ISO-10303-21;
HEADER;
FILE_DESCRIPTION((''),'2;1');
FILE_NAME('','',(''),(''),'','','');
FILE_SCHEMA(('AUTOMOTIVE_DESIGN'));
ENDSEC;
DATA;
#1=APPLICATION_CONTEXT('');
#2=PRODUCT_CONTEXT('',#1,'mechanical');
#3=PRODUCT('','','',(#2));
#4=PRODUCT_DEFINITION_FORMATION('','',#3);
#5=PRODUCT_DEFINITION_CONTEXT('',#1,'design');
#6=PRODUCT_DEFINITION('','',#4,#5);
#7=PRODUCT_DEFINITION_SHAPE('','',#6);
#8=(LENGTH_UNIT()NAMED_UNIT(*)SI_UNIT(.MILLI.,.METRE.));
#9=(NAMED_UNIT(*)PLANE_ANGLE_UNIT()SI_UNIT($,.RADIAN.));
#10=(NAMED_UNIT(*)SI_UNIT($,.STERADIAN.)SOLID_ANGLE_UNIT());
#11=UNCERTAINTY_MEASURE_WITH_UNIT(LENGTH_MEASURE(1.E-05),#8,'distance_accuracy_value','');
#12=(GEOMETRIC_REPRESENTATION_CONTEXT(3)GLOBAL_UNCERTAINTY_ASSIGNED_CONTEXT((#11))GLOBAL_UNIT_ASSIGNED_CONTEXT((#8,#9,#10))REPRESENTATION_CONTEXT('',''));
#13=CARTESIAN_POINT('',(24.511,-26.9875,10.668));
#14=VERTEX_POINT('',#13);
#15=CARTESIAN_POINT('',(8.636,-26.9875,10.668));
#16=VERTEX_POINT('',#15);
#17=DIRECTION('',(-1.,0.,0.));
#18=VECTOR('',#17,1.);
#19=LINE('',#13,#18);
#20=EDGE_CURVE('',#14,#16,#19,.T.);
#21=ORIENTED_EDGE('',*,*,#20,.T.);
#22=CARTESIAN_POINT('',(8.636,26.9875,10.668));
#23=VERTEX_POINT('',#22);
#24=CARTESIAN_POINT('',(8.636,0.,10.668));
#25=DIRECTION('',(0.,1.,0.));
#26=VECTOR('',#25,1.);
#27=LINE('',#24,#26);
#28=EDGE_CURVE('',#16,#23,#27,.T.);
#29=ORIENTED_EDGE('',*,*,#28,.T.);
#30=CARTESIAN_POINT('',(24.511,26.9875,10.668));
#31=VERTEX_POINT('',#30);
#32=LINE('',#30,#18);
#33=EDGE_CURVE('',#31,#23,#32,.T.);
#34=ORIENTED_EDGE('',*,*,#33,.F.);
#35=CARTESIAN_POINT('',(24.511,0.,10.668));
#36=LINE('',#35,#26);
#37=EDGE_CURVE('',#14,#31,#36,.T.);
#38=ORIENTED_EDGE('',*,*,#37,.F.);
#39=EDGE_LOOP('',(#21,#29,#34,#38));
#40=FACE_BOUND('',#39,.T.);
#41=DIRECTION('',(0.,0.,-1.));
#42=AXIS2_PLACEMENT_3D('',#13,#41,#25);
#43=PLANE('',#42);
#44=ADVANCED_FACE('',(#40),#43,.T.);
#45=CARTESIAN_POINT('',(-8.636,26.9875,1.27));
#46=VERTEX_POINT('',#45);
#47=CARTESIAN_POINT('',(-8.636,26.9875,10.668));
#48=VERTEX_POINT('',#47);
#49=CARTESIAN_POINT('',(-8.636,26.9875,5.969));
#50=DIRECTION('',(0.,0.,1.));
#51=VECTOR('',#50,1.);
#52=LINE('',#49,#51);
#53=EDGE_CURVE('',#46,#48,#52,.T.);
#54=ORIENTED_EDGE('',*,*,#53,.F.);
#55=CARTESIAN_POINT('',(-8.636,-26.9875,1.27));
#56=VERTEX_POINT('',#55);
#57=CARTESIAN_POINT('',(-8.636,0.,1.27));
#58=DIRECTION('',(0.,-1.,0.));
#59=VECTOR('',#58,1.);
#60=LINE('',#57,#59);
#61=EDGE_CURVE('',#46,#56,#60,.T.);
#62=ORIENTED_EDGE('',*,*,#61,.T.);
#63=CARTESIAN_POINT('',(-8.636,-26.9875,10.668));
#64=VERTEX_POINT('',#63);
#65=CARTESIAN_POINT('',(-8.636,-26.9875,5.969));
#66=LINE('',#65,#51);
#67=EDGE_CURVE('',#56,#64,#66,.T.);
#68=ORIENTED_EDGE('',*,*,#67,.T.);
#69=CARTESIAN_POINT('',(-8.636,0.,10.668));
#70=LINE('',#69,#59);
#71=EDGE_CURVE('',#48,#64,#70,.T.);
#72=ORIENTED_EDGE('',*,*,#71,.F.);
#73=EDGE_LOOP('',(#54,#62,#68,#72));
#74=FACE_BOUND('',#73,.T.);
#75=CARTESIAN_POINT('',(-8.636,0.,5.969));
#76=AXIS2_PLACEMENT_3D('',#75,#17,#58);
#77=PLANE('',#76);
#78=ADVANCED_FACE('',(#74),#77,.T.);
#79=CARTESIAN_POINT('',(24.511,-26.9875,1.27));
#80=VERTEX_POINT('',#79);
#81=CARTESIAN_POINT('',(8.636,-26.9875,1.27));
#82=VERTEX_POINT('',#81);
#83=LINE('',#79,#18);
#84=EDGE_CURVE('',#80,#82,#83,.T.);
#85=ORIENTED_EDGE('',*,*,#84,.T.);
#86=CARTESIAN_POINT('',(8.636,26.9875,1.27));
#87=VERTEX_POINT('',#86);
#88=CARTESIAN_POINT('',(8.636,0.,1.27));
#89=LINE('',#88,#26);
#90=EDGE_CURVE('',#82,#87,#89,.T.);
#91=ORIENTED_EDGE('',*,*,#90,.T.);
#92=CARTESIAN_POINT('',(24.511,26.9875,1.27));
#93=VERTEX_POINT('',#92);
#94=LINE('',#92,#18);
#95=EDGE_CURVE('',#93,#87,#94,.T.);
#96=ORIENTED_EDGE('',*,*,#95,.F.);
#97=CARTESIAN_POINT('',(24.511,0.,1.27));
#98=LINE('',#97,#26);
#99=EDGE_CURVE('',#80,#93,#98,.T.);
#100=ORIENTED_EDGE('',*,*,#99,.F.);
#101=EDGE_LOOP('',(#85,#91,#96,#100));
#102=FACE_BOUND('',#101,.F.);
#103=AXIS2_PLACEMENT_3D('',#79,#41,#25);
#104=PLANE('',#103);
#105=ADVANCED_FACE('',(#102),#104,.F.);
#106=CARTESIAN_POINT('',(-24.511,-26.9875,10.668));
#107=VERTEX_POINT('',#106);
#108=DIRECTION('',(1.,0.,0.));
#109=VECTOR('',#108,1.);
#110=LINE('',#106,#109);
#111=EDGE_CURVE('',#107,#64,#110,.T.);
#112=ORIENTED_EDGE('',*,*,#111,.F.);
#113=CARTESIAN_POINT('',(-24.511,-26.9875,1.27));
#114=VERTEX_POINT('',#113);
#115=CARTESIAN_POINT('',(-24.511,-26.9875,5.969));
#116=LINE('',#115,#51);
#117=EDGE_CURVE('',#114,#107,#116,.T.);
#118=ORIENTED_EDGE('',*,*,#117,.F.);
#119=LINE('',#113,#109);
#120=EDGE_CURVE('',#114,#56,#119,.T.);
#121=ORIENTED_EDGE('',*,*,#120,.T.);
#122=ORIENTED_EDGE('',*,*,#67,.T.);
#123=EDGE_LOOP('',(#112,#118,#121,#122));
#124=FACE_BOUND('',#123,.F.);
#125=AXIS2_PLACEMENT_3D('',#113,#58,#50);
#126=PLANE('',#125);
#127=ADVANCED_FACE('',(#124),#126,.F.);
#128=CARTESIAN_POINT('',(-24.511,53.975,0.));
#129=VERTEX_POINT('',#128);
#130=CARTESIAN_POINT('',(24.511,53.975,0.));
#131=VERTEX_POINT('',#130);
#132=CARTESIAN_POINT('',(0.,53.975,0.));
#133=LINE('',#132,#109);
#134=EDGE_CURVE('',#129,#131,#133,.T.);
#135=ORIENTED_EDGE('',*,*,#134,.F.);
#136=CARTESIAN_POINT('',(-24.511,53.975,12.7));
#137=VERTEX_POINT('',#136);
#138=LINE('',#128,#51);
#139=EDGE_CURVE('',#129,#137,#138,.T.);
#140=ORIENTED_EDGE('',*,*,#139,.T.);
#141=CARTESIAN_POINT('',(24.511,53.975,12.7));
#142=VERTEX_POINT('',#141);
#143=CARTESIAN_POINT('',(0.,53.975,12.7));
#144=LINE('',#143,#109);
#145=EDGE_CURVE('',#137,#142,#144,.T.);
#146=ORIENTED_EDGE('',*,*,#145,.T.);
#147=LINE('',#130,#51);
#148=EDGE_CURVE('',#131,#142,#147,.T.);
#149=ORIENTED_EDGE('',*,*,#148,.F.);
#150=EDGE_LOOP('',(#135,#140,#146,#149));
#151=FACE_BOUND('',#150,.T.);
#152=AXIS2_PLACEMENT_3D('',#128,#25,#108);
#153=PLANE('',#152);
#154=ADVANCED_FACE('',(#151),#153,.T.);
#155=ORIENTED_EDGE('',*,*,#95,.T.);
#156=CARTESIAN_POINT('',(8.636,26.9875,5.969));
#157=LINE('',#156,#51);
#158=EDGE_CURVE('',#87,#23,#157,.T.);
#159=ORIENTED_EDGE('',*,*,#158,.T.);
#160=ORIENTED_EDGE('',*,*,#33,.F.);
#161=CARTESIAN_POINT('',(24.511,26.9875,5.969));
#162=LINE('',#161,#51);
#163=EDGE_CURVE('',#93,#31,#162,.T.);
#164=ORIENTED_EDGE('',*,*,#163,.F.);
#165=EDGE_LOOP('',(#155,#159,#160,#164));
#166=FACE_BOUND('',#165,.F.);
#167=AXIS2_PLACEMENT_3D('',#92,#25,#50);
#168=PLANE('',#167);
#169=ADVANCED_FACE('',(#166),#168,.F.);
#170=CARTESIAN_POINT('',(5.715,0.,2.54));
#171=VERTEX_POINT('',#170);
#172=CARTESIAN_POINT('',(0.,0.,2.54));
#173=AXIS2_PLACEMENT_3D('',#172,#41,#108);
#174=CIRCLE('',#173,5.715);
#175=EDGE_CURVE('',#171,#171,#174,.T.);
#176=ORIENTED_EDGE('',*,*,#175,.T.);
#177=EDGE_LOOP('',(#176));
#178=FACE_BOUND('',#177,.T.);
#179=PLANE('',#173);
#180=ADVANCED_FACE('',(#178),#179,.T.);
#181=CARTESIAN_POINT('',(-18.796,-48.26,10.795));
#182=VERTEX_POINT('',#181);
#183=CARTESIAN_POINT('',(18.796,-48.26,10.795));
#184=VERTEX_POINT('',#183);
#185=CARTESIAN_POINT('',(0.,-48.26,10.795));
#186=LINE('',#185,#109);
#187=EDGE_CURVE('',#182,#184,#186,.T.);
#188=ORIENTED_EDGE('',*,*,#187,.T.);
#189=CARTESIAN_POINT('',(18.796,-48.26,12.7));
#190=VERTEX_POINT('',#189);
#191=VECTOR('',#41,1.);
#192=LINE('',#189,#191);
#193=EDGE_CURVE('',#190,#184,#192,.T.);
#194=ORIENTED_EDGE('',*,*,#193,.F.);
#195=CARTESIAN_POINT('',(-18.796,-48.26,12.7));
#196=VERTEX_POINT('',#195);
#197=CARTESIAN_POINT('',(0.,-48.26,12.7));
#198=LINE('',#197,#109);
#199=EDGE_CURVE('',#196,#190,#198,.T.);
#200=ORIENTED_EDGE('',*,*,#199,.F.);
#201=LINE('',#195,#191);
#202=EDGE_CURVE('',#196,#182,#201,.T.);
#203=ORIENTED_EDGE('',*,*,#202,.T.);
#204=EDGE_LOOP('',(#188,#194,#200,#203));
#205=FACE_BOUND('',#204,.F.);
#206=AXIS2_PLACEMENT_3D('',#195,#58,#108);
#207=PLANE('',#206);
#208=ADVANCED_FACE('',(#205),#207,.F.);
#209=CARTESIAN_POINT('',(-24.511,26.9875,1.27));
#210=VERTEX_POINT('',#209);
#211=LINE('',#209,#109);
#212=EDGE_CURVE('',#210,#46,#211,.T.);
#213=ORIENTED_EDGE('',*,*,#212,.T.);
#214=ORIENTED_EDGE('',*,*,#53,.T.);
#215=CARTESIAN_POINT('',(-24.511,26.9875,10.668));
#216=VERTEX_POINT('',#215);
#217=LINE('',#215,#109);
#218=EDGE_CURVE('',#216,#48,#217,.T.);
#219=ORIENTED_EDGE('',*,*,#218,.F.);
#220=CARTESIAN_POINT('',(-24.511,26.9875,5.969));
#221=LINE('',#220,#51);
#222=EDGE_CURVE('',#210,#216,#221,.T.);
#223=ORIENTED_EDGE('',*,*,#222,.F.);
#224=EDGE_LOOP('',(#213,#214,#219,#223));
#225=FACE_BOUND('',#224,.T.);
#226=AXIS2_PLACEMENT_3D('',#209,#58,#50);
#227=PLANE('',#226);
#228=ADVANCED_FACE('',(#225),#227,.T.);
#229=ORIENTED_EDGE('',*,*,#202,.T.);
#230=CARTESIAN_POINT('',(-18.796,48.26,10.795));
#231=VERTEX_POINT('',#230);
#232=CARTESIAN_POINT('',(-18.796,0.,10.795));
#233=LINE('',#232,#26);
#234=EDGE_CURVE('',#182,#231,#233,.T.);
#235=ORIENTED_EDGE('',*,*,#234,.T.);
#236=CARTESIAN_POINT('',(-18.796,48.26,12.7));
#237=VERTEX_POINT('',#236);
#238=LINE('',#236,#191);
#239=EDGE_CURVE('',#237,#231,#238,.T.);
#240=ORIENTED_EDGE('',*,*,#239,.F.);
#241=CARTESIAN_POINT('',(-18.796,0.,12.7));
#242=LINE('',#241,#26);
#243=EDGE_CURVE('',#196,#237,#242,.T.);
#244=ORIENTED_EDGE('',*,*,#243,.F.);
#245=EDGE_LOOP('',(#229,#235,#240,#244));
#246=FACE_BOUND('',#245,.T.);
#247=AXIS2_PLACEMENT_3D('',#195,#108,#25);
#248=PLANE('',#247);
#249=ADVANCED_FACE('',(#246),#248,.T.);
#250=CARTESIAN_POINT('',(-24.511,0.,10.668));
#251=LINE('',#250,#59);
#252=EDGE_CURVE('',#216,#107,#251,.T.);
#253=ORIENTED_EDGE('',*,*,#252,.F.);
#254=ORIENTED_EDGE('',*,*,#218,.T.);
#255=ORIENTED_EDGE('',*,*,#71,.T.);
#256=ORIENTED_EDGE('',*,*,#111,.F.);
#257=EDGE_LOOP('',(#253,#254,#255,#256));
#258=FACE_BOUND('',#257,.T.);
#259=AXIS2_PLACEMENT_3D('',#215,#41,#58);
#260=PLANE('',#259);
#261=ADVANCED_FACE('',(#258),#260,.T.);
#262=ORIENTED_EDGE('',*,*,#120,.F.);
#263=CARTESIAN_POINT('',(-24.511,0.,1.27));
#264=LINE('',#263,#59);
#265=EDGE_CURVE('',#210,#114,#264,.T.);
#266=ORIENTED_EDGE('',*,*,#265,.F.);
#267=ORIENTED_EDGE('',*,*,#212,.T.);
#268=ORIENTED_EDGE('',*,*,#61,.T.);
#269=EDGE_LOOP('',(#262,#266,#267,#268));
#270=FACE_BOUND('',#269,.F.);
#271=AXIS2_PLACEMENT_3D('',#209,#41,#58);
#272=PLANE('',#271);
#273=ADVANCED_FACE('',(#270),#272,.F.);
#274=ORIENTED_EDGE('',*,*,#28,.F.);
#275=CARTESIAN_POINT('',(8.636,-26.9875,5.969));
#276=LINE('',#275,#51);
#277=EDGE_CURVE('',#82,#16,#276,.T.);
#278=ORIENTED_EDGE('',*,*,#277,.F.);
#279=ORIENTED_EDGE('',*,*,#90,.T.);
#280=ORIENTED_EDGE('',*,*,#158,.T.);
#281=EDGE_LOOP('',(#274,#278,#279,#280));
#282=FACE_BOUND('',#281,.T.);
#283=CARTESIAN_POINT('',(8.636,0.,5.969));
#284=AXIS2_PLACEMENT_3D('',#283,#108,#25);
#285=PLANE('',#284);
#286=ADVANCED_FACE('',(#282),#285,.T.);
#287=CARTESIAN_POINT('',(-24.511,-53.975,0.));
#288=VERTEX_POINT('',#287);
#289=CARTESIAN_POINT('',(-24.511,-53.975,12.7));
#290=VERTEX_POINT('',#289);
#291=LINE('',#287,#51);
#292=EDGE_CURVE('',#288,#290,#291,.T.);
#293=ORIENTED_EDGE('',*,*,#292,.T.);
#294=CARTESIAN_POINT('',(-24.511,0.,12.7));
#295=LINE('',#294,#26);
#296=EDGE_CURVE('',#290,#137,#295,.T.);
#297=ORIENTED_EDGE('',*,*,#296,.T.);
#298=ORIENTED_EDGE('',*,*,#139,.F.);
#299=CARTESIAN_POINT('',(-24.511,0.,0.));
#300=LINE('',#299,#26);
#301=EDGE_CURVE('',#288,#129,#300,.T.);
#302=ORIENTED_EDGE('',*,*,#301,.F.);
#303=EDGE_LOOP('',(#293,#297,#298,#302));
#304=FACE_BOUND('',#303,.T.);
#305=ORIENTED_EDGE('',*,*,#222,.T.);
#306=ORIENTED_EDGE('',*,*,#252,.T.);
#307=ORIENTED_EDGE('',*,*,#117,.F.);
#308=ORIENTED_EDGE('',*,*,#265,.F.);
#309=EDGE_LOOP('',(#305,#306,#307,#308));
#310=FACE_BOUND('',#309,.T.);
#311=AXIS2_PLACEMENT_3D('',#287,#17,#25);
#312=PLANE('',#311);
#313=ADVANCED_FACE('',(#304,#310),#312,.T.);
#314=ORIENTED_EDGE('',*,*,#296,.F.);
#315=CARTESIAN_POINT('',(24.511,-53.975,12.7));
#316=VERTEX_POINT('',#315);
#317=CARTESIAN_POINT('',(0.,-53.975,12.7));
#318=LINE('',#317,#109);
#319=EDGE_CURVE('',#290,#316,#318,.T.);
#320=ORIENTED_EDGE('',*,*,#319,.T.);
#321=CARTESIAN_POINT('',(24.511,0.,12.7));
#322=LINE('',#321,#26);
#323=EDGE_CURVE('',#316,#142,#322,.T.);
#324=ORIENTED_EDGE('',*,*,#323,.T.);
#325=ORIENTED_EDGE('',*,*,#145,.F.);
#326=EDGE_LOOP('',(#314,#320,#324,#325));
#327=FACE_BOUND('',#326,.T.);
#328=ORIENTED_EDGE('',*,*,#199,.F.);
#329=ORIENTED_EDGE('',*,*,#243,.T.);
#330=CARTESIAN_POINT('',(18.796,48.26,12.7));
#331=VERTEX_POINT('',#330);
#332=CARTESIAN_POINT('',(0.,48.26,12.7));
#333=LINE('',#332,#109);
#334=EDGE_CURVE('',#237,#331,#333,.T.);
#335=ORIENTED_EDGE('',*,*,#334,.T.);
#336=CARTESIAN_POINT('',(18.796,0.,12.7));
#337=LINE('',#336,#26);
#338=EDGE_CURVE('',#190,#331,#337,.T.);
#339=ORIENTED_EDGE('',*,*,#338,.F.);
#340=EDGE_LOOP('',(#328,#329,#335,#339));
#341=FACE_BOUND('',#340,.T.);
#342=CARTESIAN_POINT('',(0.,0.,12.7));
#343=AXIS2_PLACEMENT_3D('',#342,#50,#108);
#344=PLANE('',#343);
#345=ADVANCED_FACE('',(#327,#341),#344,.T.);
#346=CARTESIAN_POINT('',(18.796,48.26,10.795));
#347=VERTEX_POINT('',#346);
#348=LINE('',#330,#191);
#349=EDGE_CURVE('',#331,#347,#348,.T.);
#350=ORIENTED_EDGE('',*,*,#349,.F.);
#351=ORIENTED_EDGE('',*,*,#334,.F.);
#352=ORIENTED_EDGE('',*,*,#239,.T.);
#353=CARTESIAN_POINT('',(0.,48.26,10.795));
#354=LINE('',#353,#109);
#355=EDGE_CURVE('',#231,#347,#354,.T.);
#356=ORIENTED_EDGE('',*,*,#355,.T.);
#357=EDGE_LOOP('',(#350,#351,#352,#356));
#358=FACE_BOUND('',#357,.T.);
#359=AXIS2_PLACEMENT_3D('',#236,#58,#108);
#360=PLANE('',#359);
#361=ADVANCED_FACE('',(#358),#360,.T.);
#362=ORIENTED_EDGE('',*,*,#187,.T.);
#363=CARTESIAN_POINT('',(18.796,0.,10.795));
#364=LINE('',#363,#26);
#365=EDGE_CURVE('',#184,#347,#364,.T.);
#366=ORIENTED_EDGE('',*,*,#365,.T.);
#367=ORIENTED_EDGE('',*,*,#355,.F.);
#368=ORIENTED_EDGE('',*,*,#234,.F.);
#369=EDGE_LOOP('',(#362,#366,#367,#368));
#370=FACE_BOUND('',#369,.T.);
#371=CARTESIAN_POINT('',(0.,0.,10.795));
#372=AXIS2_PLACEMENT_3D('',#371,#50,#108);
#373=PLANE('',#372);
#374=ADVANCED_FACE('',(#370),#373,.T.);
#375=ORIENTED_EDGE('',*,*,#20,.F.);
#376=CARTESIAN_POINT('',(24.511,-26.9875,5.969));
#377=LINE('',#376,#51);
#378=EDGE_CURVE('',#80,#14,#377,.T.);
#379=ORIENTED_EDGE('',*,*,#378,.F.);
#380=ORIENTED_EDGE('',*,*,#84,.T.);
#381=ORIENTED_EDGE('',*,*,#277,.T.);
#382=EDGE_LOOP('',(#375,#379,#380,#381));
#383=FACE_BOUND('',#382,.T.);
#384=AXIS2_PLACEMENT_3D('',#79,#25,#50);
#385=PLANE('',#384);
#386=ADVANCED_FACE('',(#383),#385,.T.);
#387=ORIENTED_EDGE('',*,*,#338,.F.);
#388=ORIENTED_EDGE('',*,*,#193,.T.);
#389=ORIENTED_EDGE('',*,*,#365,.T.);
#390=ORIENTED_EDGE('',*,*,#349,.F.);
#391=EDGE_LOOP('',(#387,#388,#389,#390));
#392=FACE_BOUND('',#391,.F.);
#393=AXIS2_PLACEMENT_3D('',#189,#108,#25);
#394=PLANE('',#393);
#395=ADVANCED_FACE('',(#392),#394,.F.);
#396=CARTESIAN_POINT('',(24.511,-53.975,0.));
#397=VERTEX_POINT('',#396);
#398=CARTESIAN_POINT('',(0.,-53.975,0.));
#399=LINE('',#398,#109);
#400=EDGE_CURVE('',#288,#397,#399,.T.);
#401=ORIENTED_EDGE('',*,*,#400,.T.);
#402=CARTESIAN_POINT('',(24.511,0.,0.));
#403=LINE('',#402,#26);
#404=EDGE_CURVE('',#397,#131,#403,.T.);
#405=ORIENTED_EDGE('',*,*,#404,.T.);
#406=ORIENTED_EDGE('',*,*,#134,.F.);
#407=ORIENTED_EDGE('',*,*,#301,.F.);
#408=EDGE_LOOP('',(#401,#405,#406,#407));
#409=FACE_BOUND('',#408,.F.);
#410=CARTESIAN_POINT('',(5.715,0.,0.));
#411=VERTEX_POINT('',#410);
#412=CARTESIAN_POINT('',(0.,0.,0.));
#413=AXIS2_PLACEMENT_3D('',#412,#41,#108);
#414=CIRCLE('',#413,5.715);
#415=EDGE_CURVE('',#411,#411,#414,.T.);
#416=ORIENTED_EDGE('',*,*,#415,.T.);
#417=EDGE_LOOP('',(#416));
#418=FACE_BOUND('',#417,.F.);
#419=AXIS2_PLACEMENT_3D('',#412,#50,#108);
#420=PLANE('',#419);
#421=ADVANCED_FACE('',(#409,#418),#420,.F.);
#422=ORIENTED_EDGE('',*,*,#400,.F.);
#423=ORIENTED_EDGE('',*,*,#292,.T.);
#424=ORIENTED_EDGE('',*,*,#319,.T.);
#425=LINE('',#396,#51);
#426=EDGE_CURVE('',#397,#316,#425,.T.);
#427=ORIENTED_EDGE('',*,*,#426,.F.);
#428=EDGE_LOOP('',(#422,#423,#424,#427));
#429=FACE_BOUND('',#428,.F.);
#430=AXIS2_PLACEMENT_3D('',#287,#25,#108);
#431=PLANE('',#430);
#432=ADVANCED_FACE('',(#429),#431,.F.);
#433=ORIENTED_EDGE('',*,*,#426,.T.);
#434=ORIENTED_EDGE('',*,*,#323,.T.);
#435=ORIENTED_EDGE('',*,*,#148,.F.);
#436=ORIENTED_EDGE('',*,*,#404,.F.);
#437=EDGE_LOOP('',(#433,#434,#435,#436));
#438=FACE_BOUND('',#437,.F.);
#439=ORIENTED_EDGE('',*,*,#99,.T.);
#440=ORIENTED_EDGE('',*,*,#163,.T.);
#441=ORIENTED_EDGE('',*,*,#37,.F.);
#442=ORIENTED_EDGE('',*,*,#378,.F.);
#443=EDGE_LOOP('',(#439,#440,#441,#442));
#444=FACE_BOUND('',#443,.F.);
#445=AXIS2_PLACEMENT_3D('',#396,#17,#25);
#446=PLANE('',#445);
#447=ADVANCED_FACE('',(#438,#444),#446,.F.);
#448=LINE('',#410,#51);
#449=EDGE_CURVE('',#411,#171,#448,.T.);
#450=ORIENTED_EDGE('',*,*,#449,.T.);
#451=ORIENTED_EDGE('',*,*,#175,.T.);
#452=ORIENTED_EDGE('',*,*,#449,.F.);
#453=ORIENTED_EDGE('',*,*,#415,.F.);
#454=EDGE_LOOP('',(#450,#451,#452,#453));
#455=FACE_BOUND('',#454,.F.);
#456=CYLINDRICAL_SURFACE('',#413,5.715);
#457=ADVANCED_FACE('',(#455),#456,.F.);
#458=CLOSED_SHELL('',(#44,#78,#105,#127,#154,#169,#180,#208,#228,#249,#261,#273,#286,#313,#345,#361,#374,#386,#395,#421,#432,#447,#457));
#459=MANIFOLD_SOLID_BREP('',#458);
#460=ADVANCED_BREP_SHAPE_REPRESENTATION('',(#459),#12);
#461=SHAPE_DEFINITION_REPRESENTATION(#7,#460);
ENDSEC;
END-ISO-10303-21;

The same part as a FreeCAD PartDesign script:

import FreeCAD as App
import Part
import Sketcher
Q = App.Units.Quantity


def add_polygon(sketch, points):
    """Adds a closed chain of lines whose ends are joined by coincident constraints."""
    first, n = sketch.GeometryCount, len(points)
    for a, b in zip(points, points[1:] + points[:1]):
        sketch.addGeometry(Part.LineSegment(App.Vector(*a, 0), App.Vector(*b, 0)), False)
    for i in range(n):
        sketch.addConstraint(Sketcher.Constraint("Coincident", first + i, 2, first + (i + 1) % n, 1))

doc = App.newDocument("Part")
body = doc.addObject("PartDesign::Body", "Body")

# Sketch on XY plane
sketch1 = body.newObject("Sketcher::SketchObject", "Sketch")
sketch1.AttachmentSupport = (doc.getObject("XY_Plane"), [""])
sketch1.MapMode = "FlatFace"
add_polygon(sketch1, [(-24.511, 53.975), (-24.511, -53.975), (24.511, -53.975), (24.511, 53.975)])  # lines 0-3
sketch1.addConstraint([
    Sketcher.Constraint("Vertical", 0),
    Sketcher.Constraint("Horizontal", 1),
    Sketcher.Constraint("Vertical", 2),
    Sketcher.Constraint("Horizontal", 3),
    Sketcher.Constraint("Symmetric", 0, 2, 2, 2, -1, 1),
    Sketcher.Constraint("DistanceX", 1, 1, 1, 2, Q("1.93 in")),
    Sketcher.Constraint("DistanceY", 0, 2, 0, 1, Q("4.25 in")),
])
pad1 = body.newObject("PartDesign::Pad", "Pad")
pad1.Profile = sketch1
pad1.Length = Q("0.5 in")

# Sketch on XY plane
sketch2 = body.newObject("Sketcher::SketchObject", "Sketch001")
sketch2.AttachmentSupport = (doc.getObject("XY_Plane"), [""])
sketch2.MapMode = "FlatFace"
sketch2.addGeometry(Part.Circle(App.Vector(0, 0, 0), App.Vector(0, 0, 1), 5.715), False)
sketch2.addConstraint([
    Sketcher.Constraint("Coincident", 0, 3, -1, 1),
    Sketcher.Constraint("Diameter", 0, Q("0.45 in")),
])
pocket1 = body.newObject("PartDesign::Pocket", "Pocket")
pocket1.Profile = sketch2
pocket1.Length = Q("0.1 in")
pocket1.Reversed = True

# Sketch on XY plane
sketch3 = body.newObject("Sketcher::SketchObject", "Sketch002")
sketch3.AttachmentSupport = (doc.getObject("XY_Plane"), [""])
sketch3.MapMode = "FlatFace"
sketch3.AttachmentOffset = App.Placement(App.Vector(0, 0, 0.5 * 25.4), App.Rotation())
add_polygon(sketch3, [(-18.796, 48.26), (-18.796, -48.26), (18.796, -48.26), (18.796, 48.26)])  # lines 0-3
sketch3.addConstraint([
    Sketcher.Constraint("Vertical", 0),
    Sketcher.Constraint("Horizontal", 1),
    Sketcher.Constraint("Vertical", 2),
    Sketcher.Constraint("Horizontal", 3),
    Sketcher.Constraint("Symmetric", 0, 2, 2, 2, -1, 1),
    Sketcher.Constraint("DistanceY", 0, 2, 0, 1, Q("3.8 in")),
    Sketcher.Constraint("DistanceX", 1, 1, 1, 2, Q("1.48 in")),
])
pocket2 = body.newObject("PartDesign::Pocket", "Pocket001")
pocket2.Profile = sketch3
pocket2.Length = Q("0.075 in")

# Sketch on YZ plane
sketch4 = body.newObject("Sketcher::SketchObject", "Sketch003")
sketch4.AttachmentSupport = (doc.getObject("YZ_Plane"), [""])
sketch4.MapMode = "FlatFace"
sketch4.AttachmentOffset = App.Placement(App.Vector(0, 0, -0.965 * 25.4), App.Rotation())
add_polygon(sketch4, [(26.9875, 10.668), (26.9875, 1.27), (-26.9875, 1.27), (-26.9875, 10.668)])  # lines 0-3
sketch4.addConstraint([
    Sketcher.Constraint("Vertical", 0),
    Sketcher.Constraint("Horizontal", 1),
    Sketcher.Constraint("Vertical", 2),
    Sketcher.Constraint("Horizontal", 3),
    Sketcher.Constraint("DistanceY", 0, 2, 0, 1, Q("0.37 in")),
    Sketcher.Constraint("DistanceX", 1, 2, 1, 1, Q("2.125 in")),
    Sketcher.Constraint("DistanceY", -1, 1, 0, 2, Q("0.05 in")),
    Sketcher.Constraint("DistanceX", -1, 1, 0, 2, Q("1.0625 in")),
])
pocket3 = body.newObject("PartDesign::Pocket", "Pocket002")
pocket3.Profile = sketch4
pocket3.Length = Q("0.625 in")
pocket3.Reversed = True

# Sketch on YZ plane
sketch5 = body.newObject("Sketcher::SketchObject", "Sketch004")
sketch5.AttachmentSupport = (doc.getObject("YZ_Plane"), [""])
sketch5.MapMode = "FlatFace"
sketch5.AttachmentOffset = App.Placement(App.Vector(0, 0, 0.965 * 25.4), App.Rotation())
add_polygon(sketch5, [(-26.9875, 10.668), (-26.9875, 1.27), (26.9875, 1.27), (26.9875, 10.668)])  # lines 0-3
sketch5.addConstraint([
    Sketcher.Constraint("Vertical", 0),
    Sketcher.Constraint("Horizontal", 1),
    Sketcher.Constraint("Vertical", 2),
    Sketcher.Constraint("Horizontal", 3),
    Sketcher.Constraint("DistanceY", 0, 2, 0, 1, Q("0.37 in")),
    Sketcher.Constraint("DistanceX", 1, 1, 1, 2, Q("2.125 in")),
    Sketcher.Constraint("DistanceY", -1, 1, 0, 2, Q("0.05 in")),
    Sketcher.Constraint("DistanceX", 0, 2, -1, 1, Q("1.0625 in")),
])
pocket4 = body.newObject("PartDesign::Pocket", "Pocket003")
pocket4.Profile = sketch5
pocket4.Length = Q("0.625 in")

doc.recompute()
